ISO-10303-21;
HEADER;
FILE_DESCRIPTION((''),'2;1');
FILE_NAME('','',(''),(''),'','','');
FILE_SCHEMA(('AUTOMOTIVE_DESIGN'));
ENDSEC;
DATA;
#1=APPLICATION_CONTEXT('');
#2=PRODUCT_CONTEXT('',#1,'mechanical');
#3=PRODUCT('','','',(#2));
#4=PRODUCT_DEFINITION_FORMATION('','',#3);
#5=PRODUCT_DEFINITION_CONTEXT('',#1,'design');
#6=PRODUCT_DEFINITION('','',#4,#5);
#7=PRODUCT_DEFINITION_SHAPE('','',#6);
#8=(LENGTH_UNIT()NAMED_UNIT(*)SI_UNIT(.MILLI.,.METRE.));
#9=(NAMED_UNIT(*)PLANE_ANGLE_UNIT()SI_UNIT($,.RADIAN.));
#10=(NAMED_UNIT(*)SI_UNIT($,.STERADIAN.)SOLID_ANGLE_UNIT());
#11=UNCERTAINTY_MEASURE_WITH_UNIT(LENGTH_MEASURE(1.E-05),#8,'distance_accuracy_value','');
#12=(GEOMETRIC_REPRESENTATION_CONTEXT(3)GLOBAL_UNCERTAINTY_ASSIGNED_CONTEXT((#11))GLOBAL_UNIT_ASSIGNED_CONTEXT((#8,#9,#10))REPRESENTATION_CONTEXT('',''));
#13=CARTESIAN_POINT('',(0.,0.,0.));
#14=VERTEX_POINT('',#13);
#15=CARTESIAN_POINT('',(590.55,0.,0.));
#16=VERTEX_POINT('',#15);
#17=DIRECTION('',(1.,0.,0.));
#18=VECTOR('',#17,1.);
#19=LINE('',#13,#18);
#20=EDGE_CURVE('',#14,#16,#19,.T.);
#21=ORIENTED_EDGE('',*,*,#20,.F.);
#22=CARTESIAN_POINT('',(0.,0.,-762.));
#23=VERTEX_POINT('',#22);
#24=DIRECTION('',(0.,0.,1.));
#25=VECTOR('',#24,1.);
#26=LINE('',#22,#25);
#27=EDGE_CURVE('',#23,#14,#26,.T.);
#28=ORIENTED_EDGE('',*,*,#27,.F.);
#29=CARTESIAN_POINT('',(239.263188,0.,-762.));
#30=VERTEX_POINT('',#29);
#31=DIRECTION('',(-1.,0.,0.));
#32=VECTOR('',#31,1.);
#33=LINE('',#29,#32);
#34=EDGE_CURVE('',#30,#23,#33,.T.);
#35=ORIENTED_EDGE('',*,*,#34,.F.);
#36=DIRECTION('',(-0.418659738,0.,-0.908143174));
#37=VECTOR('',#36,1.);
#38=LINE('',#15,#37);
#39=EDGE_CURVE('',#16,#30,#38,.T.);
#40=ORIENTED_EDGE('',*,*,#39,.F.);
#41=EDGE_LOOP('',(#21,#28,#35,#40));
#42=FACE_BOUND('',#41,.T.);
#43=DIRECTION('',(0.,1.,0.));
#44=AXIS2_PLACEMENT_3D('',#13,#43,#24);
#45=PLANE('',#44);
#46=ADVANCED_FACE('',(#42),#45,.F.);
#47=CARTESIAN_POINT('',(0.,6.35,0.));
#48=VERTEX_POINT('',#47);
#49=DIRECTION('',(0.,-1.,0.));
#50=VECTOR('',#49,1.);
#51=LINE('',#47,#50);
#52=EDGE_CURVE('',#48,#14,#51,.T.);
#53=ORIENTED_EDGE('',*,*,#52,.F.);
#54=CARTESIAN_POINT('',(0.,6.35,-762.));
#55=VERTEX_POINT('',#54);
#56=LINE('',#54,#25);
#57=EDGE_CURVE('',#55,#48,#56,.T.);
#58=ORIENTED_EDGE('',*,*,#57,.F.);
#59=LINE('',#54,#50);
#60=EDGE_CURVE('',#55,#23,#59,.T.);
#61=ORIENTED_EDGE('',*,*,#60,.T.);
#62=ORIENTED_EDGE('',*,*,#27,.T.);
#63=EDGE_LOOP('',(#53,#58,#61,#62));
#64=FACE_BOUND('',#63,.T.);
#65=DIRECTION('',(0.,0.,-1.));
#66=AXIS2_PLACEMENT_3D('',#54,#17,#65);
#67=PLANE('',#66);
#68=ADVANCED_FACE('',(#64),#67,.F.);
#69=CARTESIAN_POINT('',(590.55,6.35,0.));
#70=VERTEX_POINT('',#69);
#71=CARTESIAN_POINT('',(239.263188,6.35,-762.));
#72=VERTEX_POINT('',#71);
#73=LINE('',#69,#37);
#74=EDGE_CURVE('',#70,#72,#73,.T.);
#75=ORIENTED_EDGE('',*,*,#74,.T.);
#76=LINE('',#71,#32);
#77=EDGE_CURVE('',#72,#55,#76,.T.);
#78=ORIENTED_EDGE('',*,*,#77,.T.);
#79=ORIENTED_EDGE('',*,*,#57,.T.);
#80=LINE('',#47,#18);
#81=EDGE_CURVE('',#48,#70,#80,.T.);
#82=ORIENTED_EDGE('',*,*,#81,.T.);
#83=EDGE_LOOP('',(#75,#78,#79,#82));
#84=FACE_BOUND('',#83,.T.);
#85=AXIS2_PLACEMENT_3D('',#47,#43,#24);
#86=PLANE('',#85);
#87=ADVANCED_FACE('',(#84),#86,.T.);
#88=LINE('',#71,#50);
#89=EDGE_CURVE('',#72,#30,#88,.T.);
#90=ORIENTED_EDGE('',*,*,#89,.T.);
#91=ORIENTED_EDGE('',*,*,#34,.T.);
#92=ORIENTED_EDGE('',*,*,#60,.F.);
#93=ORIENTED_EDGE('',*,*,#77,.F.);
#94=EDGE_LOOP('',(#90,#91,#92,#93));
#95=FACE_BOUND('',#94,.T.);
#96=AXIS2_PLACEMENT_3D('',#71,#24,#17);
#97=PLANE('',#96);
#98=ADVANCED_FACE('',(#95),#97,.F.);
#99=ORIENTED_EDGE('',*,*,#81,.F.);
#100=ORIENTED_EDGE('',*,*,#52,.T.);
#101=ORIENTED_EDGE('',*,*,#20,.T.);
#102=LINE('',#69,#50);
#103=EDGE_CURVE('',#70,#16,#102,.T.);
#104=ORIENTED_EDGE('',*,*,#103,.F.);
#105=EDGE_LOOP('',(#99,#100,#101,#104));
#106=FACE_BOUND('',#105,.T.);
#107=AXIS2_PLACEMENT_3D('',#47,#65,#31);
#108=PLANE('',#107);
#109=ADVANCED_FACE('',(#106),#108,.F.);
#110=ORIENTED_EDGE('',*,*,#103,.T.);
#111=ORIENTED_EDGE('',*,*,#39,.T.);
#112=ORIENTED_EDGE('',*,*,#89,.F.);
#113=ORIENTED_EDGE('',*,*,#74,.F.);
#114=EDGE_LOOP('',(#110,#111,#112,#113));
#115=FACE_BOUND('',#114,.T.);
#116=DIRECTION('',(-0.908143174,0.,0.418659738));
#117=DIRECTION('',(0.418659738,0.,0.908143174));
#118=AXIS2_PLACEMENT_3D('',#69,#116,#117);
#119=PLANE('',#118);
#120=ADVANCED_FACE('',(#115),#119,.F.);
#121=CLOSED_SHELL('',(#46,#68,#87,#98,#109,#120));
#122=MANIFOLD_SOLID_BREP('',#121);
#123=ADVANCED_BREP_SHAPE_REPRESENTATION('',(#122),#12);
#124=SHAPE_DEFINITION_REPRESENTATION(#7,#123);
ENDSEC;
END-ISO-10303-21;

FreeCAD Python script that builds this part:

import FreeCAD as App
import Part
import Sketcher

V = App.Vector
Q = App.Units.Quantity

doc = App.newDocument("Part")
params = doc.addObject("Spreadsheet::Sheet", "Params")
for row, (alias, value) in enumerate([
    ("sketch1_height", "30 in"),
    ("sketch1_width", "23.25 in"),
    ("pad1_length", "0.25 in"),
], start=1):
    params.set(f"A{row}", alias)
    params.set(f"B{row}", "=" + value)
    params.setAlias(f"B{row}", alias)

body = doc.addObject("PartDesign::Body", "Body")

sketch1 = body.newObject("Sketcher::SketchObject", "Sketch")
sketch1.AttachmentSupport = (doc.getObject("XZ_Plane"), [""])
sketch1.MapMode = "FlatFace"
sketch1.addGeometry(Part.LineSegment(V(0, 0, 0), V(591, 0, 0)), False)
sketch1.addGeometry(Part.LineSegment(V(591, 0, 0), V(239, -762, 0)), False)
sketch1.addGeometry(Part.LineSegment(V(239, -762, 0), V(0, -762, 0)), False)
sketch1.addGeometry(Part.LineSegment(V(0, -762, 0), V(0, 0, 0)), False)
sketch1.addConstraint(Sketcher.Constraint("Coincident", 0, 2, 1, 1))
sketch1.addConstraint(Sketcher.Constraint("Coincident", 1, 2, 2, 1))
sketch1.addConstraint(Sketcher.Constraint("Coincident", 2, 2, 3, 1))
sketch1.addConstraint(Sketcher.Constraint("Coincident", 3, 2, 0, 1))
sketch1.addConstraint(Sketcher.Constraint("Horizontal", 0))
sketch1.addConstraint(Sketcher.Constraint("Horizontal", 2))
sketch1.addConstraint(Sketcher.Constraint("Vertical", 3))
sketch1.addConstraint(Sketcher.Constraint("Coincident", 3, 2, -1, 1))
sketch1.addConstraint(Sketcher.Constraint("DistanceY", 3, 1, 3, 2, Q("30 in")))
sketch1.addConstraint(Sketcher.Constraint("DistanceX", 0, 1, 0, 2, Q("23.25 in")))
sketch1.addConstraint(Sketcher.Constraint("Angle", 1, Q("-114.75 deg")))
sketch1.setExpression("Constraints[8]", "Params.sketch1_height")
sketch1.setExpression("Constraints[9]", "Params.sketch1_width")
pad1 = body.newObject("PartDesign::Pad", "Pad")
pad1.Profile = sketch1
pad1.setExpression("Length", "Params.pad1_length")
pad1.Reversed = True

doc.recompute()
